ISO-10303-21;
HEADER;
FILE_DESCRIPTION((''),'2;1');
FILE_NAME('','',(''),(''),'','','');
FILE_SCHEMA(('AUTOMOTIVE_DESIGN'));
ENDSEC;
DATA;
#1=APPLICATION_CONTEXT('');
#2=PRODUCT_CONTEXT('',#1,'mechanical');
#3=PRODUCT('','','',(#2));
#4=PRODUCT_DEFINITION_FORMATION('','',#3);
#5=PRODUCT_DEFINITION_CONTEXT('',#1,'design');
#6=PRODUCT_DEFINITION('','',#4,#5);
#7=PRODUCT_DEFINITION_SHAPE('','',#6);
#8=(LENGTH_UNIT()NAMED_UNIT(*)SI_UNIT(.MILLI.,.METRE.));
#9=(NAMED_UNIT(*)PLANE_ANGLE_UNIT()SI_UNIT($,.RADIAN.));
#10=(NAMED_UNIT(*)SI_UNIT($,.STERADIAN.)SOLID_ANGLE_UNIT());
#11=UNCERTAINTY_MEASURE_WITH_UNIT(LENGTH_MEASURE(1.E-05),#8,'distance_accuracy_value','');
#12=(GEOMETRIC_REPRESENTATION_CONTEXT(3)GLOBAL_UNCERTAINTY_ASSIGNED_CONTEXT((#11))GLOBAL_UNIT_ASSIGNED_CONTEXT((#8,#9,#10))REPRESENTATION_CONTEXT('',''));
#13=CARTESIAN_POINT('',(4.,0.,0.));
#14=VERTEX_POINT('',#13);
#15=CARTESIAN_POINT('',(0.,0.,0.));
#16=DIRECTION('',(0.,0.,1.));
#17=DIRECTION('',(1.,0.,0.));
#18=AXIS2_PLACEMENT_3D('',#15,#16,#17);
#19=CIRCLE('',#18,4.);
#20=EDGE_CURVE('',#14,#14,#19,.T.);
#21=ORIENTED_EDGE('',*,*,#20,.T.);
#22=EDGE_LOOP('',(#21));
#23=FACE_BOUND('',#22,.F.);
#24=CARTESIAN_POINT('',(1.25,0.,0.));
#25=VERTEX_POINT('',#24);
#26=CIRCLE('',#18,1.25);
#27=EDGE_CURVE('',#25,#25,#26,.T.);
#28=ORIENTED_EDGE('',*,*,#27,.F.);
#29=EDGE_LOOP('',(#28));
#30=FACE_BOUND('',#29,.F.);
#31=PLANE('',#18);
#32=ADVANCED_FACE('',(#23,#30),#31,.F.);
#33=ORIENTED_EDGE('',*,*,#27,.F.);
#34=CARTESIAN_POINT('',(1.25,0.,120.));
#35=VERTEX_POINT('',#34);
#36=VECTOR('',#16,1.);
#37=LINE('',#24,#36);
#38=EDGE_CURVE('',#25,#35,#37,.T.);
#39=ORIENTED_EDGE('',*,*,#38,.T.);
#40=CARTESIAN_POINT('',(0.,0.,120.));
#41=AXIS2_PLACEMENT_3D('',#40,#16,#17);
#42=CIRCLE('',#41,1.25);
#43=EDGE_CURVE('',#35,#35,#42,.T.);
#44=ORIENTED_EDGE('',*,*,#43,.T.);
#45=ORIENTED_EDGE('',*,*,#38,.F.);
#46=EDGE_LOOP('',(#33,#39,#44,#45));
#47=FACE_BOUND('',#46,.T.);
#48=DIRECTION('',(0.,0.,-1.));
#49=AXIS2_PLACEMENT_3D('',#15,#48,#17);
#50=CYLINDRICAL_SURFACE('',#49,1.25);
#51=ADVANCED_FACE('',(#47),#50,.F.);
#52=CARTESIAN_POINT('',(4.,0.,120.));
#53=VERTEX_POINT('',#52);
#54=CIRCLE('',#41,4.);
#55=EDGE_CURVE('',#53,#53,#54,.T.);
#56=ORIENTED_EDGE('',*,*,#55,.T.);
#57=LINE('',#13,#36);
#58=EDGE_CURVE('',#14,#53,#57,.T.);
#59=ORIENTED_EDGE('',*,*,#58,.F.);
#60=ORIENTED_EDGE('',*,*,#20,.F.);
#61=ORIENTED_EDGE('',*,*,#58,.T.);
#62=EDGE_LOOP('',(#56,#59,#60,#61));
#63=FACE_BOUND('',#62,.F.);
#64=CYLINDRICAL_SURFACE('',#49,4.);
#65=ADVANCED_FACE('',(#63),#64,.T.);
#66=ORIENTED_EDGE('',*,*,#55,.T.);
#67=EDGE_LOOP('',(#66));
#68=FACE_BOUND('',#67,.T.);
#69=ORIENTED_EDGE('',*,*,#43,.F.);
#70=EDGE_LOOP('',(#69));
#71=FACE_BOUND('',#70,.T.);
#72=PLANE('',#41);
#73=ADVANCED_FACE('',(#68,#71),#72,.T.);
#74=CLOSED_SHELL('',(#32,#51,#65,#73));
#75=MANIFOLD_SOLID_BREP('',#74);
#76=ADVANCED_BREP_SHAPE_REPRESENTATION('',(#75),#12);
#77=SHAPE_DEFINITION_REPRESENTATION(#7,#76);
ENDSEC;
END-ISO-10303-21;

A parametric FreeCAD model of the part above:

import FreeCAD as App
import Part
import Sketcher
from FreeCAD import Vector
Q = App.Units.Quantity

doc = App.newDocument("Part")
params = doc.addObject("Spreadsheet::Sheet", "Params")
for row, (alias, value) in enumerate([
    ("sketch1_diameter", "8 mm"),
    ("sketch1_diameter2", "2.5 mm"),
    ("pad1_length", "120 mm"),
], start=1):
    params.set(f"A{row}", alias)
    params.set(f"B{row}", "=" + value)
    params.setAlias(f"B{row}", alias)

body = doc.addObject("PartDesign::Body", "Body")

sketch1 = body.newObject("Sketcher::SketchObject", "Sketch")
sketch1.AttachmentSupport = (doc.getObject("XY_Plane"), [""])
sketch1.MapMode = "FlatFace"
sketch1.addGeometry(Part.Circle(Vector(0, 0, 0), Vector(0, 0, 1), 4), False)
sketch1.addGeometry(Part.Circle(Vector(0, 0, 0), Vector(0, 0, 1), 1.2), False)
sketch1.addConstraint(Sketcher.Constraint("Coincident", 0, 3, -1, 1))
sketch1.addConstraint(Sketcher.Constraint("Coincident", 1, 3, -1, 1))
sketch1.addConstraint(Sketcher.Constraint("Diameter", 0, Q("8 mm")))
sketch1.addConstraint(Sketcher.Constraint("Diameter", 1, Q("2.5 mm")))
sketch1.setExpression("Constraints[2]", "Params.sketch1_diameter")
sketch1.setExpression("Constraints[3]", "Params.sketch1_diameter2")
pad1 = body.newObject("PartDesign::Pad", "Pad")
pad1.Profile = sketch1
pad1.setExpression("Length", "Params.pad1_length")

doc.recompute()
